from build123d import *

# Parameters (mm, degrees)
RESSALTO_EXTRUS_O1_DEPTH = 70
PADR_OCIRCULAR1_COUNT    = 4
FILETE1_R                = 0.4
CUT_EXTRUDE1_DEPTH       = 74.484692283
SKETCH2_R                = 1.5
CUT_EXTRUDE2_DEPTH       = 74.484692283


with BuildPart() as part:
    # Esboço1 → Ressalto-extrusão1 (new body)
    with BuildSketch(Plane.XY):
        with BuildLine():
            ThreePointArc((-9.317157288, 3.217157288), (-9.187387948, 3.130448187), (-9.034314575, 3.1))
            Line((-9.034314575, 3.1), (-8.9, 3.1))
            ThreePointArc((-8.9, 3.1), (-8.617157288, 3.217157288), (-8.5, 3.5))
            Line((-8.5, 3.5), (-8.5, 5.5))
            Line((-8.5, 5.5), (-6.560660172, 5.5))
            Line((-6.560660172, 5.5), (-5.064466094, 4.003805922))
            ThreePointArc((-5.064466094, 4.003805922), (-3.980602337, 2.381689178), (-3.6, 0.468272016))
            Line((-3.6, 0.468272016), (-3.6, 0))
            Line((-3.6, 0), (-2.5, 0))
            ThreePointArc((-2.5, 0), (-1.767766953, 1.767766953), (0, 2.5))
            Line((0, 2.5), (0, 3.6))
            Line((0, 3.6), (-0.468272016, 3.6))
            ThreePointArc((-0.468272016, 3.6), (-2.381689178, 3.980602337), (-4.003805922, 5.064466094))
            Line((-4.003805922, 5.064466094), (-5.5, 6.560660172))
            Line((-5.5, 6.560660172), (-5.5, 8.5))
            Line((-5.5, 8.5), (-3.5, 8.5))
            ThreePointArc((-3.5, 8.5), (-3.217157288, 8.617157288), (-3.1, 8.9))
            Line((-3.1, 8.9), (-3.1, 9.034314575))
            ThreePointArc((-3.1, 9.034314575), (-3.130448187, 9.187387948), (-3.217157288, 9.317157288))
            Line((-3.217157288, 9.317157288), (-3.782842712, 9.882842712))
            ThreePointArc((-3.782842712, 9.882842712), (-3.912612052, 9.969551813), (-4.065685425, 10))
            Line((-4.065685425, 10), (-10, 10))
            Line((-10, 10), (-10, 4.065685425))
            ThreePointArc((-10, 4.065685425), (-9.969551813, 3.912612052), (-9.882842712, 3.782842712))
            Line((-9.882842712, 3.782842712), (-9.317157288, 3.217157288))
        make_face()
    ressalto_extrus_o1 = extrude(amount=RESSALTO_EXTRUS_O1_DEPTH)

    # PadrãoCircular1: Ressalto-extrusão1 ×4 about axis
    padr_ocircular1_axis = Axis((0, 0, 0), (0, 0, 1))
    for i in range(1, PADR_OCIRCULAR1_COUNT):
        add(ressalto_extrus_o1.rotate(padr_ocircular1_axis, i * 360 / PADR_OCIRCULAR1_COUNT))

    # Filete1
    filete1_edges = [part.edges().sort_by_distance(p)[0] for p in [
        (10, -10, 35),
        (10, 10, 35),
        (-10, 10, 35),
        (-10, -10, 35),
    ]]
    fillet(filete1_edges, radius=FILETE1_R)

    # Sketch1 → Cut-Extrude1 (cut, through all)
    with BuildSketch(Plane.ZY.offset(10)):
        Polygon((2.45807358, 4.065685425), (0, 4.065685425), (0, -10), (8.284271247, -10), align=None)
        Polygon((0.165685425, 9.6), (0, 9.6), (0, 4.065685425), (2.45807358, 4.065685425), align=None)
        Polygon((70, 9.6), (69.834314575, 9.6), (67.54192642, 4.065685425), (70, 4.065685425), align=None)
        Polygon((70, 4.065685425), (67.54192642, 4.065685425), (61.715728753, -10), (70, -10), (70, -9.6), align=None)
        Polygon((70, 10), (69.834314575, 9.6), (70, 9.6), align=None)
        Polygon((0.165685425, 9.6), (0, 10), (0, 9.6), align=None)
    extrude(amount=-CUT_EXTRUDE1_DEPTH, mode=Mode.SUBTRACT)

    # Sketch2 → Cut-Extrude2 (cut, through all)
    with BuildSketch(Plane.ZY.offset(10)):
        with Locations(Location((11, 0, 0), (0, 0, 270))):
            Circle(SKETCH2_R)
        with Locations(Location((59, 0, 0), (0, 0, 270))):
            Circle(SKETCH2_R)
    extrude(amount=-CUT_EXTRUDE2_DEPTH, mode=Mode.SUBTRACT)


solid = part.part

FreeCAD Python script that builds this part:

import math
import FreeCAD as App
import Part
import Sketcher
from FreeCAD import Vector
Q = App.Units.Quantity


def edges_at(feature, points):
    """Names of the edges that pass closest to the given points."""
    edges = feature.Shape.Edges
    near = lambda p: min(range(len(edges)), key=lambda i: edges[i].distToShape(Part.Vertex(*p))[0])
    return sorted({f"Edge{near(p) + 1}" for p in points})


def add_polygon(sketch, points):
    """Adds a closed chain of lines whose ends are joined by coincident constraints."""
    first, n = sketch.GeometryCount, len(points)
    for a, b in zip(points, points[1:] + points[:1]):
        sketch.addGeometry(Part.LineSegment(App.Vector(*a, 0), App.Vector(*b, 0)), False)
    for i in range(n):
        sketch.addConstraint(Sketcher.Constraint("Coincident", first + i, 2, first + (i + 1) % n, 1))

doc = App.newDocument("Part")
body = doc.addObject("PartDesign::Body", "Body")

sketch1 = body.newObject("Sketcher::SketchObject", "Sketch")
sketch1.AttachmentSupport = (doc.getObject("XY_Plane"), [""])
sketch1.MapMode = "FlatFace"
sketch1.addGeometry([
    Part.ArcOfCircle(Part.Circle(Vector(-9.034315, 3.5, 0), Vector(0, 0, 1), 0.4), math.radians(-135), math.radians(-90)),
    Part.LineSegment(Vector(-9.034315, 3.1, 0), Vector(-8.9, 3.1, 0)),
    Part.ArcOfCircle(Part.Circle(Vector(-8.9, 3.5, 0), Vector(0, 0, 1), 0.4), math.radians(-90), math.radians(0)),
    Part.LineSegment(Vector(-8.5, 3.5, 0), Vector(-8.5, 5.5, 0)),
    Part.LineSegment(Vector(-8.5, 5.5, 0), Vector(-6.56066, 5.5, 0)),
    Part.LineSegment(Vector(-6.56066, 5.5, 0), Vector(-5.064466, 4.003806, 0)),
    Part.ArcOfCircle(Part.Circle(Vector(-8.6, 0.468272, 0), Vector(0, 0, 1), 5), math.radians(0), math.radians(45)),
    Part.LineSegment(Vector(-3.6, 0.468272, 0), Vector(-3.6, 0, 0)),
    Part.LineSegment(Vector(-3.6, 0, 0), Vector(-2.5, 0, 0)),
    Part.ArcOfCircle(Part.Circle(Vector(0, 0, 0), Vector(0, 0, 1), 2.5), math.radians(90), math.radians(180)),
    Part.LineSegment(Vector(0, 2.5, 0), Vector(0, 3.6, 0)),
    Part.LineSegment(Vector(0, 3.6, 0), Vector(-0.468272, 3.6, 0)),
    Part.ArcOfCircle(Part.Circle(Vector(-0.468272, 8.6, 0), Vector(0, 0, 1), 5), math.radians(-135), math.radians(-90)),
    Part.LineSegment(Vector(-4.003806, 5.064466, 0), Vector(-5.5, 6.56066, 0)),
    Part.LineSegment(Vector(-5.5, 6.56066, 0), Vector(-5.5, 8.5, 0)),
    Part.LineSegment(Vector(-5.5, 8.5, 0), Vector(-3.5, 8.5, 0)),
    Part.ArcOfCircle(Part.Circle(Vector(-3.5, 8.9, 0), Vector(0, 0, 1), 0.4), math.radians(-90), math.radians(0)),
    Part.LineSegment(Vector(-3.1, 8.9, 0), Vector(-3.1, 9.034315, 0)),
    Part.ArcOfCircle(Part.Circle(Vector(-3.5, 9.034315, 0), Vector(0, 0, 1), 0.4), math.radians(0), math.radians(45)),
    Part.LineSegment(Vector(-3.217157, 9.317157, 0), Vector(-3.782843, 9.882843, 0)),
    Part.ArcOfCircle(Part.Circle(Vector(-4.065685, 9.6, 0), Vector(0, 0, 1), 0.4), math.radians(45), math.radians(90)),
    Part.LineSegment(Vector(-4.065685, 10, 0), Vector(-10, 10, 0)),
    Part.LineSegment(Vector(-10, 10, 0), Vector(-10, 4.065685, 0)),
    Part.ArcOfCircle(Part.Circle(Vector(-9.6, 4.065685, 0), Vector(0, 0, 1), 0.4), math.radians(180), math.radians(225)),
    Part.LineSegment(Vector(-9.882843, 3.782843, 0), Vector(-9.317157, 3.217157, 0)),
], False)
sketch1.addConstraint([
    Sketcher.Constraint("Tangent", 0, 2, 1, 1),
    Sketcher.Constraint("Tangent", 1, 2, 2, 1),
    Sketcher.Constraint("Tangent", 2, 2, 3, 1),
    Sketcher.Constraint("Coincident", 3, 2, 4, 1),
    Sketcher.Constraint("Coincident", 4, 2, 5, 1),
    Sketcher.Constraint("Tangent", 5, 2, 6, 2),
    Sketcher.Constraint("Tangent", 6, 1, 7, 1),
    Sketcher.Constraint("Coincident", 7, 2, 8, 1),
    Sketcher.Constraint("Coincident", 8, 2, 9, 2),
    Sketcher.Constraint("Coincident", 9, 1, 10, 1),
    Sketcher.Constraint("Coincident", 10, 2, 11, 1),
    Sketcher.Constraint("Tangent", 11, 2, 12, 2),
    Sketcher.Constraint("Tangent", 12, 1, 13, 1),
    Sketcher.Constraint("Coincident", 13, 2, 14, 1),
    Sketcher.Constraint("Coincident", 14, 2, 15, 1),
    Sketcher.Constraint("Tangent", 15, 2, 16, 1),
    Sketcher.Constraint("Tangent", 16, 2, 17, 1),
    Sketcher.Constraint("Tangent", 17, 2, 18, 1),
    Sketcher.Constraint("Tangent", 18, 2, 19, 1),
    Sketcher.Constraint("Tangent", 19, 2, 20, 1),
    Sketcher.Constraint("Tangent", 20, 2, 21, 1),
    Sketcher.Constraint("Coincident", 21, 2, 22, 1),
    Sketcher.Constraint("Tangent", 22, 2, 23, 1),
    Sketcher.Constraint("Tangent", 23, 2, 24, 1),
    Sketcher.Constraint("Tangent", 24, 2, 0, 1),
    Sketcher.Constraint("Horizontal", 1),
    Sketcher.Constraint("Vertical", 3),
    Sketcher.Constraint("Horizontal", 4),
    Sketcher.Constraint("Vertical", 7),
    Sketcher.Constraint("Horizontal", 8),
    Sketcher.Constraint("Vertical", 10),
    Sketcher.Constraint("Horizontal", 11),
    Sketcher.Constraint("Vertical", 14),
    Sketcher.Constraint("Horizontal", 15),
    Sketcher.Constraint("Vertical", 17),
    Sketcher.Constraint("Horizontal", 21),
    Sketcher.Constraint("Vertical", 22),
    Sketcher.Constraint("Coincident", 9, 3, -1, 1),
    Sketcher.Constraint("Equal", 0, 2),
    Sketcher.Constraint("Equal", 6, 12),
    Sketcher.Constraint("Equal", 2, 16),
    Sketcher.Constraint("Equal", 16, 18),
    Sketcher.Constraint("Equal", 18, 20),
    Sketcher.Constraint("Equal", 20, 23),
    Sketcher.Constraint("PointOnObject", 7, 2, -1),
    Sketcher.Constraint("PointOnObject", 9, 1, -2),
    Sketcher.Constraint("Parallel", 5, 13),
    Sketcher.Constraint("Parallel", 13, 19),
    Sketcher.Constraint("Parallel", 19, 24),
    Sketcher.Constraint("Equal", 15, 3),
    Sketcher.Constraint("Equal", 11, 7),
    Sketcher.Constraint("Equal", 8, 10),
    Sketcher.Constraint("Equal", 4, 14),
    Sketcher.Constraint("Equal", 1, 17),
    Sketcher.Constraint("Equal", 21, 22),
    Sketcher.Constraint("Equal", 5, 13),
    Sketcher.Constraint("Equal", 19, 24),
    Sketcher.Constraint("Radius", 6, Q("5 mm")),
    Sketcher.Constraint("Radius", 0, Q("0.4 mm")),
    Sketcher.Constraint("Radius", 9, Q("2.5 mm")),
    Sketcher.Constraint("DistanceX", 15, 1, 15, 2, Q("2 mm")),
    Sketcher.Constraint("DistanceX", 8, 1, 8, 2, Q("1.1 mm")),
    Sketcher.Constraint("DistanceY", -1, 1, 20, 2, Q("10 mm")),
    Sketcher.Constraint("DistanceY", 4, 2, 14, 2, Q("3 mm")),
    Sketcher.Constraint("Distance", 19, Q("0.8 mm")),
    Sketcher.Constraint("DistanceY", -1, 1, 0, 3, Q("3.5 mm")),
    Sketcher.Constraint("DistanceX", 4, 1, 4, 2, Q("1.93934 mm")),
])
pad1 = body.newObject("PartDesign::Pad", "Pad")
pad1.Profile = sketch1
pad1.Length = 70
doc.recompute()

polarpattern = body.newObject("PartDesign::PolarPattern", "PolarPattern")
polarpattern.Originals = [pad1]
polarpattern.Axis = (doc.getObject("Z_Axis"), [""])
polarpattern.Angle = 360
polarpattern.Occurrences = 4
body.Tip = polarpattern
doc.recompute()

fillet = body.newObject("PartDesign::Fillet", "Fillet")
fillet.Base = (polarpattern, edges_at(polarpattern, [
    (10, -10, 35),
    (10, 10, 35),
    (-10, 10, 35),
    (-10, -10, 35),
]))
fillet.Radius = 0.4

sketch2 = body.newObject("Sketcher::SketchObject", "Sketch001")
sketch2.AttachmentSupport = (doc.getObject("YZ_Plane"), [""])
sketch2.MapMode = "FlatFace"
sketch2.AttachmentOffset = App.Placement(Vector(0, 0, -10), App.Rotation())
add_polygon(sketch2, [(-10, 0), (-10, 8.284271), (4.065685, 2.458074), (9.6, 0.165685), (10, 0)])
add_polygon(sketch2, [(9.6, 69.834315), (4.065685, 67.541926), (-10, 61.715729), (-10, 70), (10, 70)])
sketch2.addConstraint([
    Sketcher.Constraint("Vertical", 0),
    Sketcher.Constraint("Horizontal", 4),
    Sketcher.Constraint("Vertical", 7),
    Sketcher.Constraint("Horizontal", 8),
    Sketcher.Constraint("Symmetric", 3, 2, 4, 2, -1, 1),
    Sketcher.Constraint("Parallel", 1, 2),
    Sketcher.Constraint("Parallel", 2, 3),
    Sketcher.Constraint("Parallel", 5, 6),
    Sketcher.Constraint("Parallel", 6, 9),
    Sketcher.Constraint("Vertical", 1, 2, 5, 2),
    Sketcher.Constraint("Vertical", 4, 2, 6, 2),
    Sketcher.Constraint("Vertical", 3, 2, 8, 2),
    Sketcher.Constraint("Vertical", 2, 2, 9, 2),
    Sketcher.Constraint("Equal", 0, 7),
    Sketcher.Constraint("DistanceX", 4, 2, 4, 1, Q("20 mm")),
    Sketcher.Constraint("DistanceY", -1, 1, 7, 2, Q("70 mm")),
    Sketcher.Constraint("Angle", 1, Q("-22.5 deg")),
    Sketcher.Constraint("DistanceX", -1, 1, 2, 2, Q("9.6 mm")),
    Sketcher.Constraint("Distance", 2, Q("5.990299 mm")),
])
pocket1 = body.newObject("PartDesign::Pocket", "Pocket")
pocket1.Profile = sketch2
pocket1.Type = "ThroughAll"
pocket1.Reversed = True

sketch3 = body.newObject("Sketcher::SketchObject", "Sketch002")
sketch3.AttachmentSupport = (doc.getObject("YZ_Plane"), [""])
sketch3.MapMode = "FlatFace"
sketch3.AttachmentOffset = App.Placement(Vector(0, 0, -10), App.Rotation())
sketch3.addGeometry([
    Part.Circle(Vector(0, 11, 0), Vector(0, 0, 1), 1.5),
    Part.Circle(Vector(0, 59, 0), Vector(0, 0, 1), 1.5),
], False)
sketch3.addConstraint([
    Sketcher.Constraint("Equal", 0, 1),
    Sketcher.Constraint("PointOnObject", 0, 3, -2),
    Sketcher.Constraint("PointOnObject", 1, 3, -2),
    Sketcher.Constraint("Diameter", 0, Q("3 mm")),
    Sketcher.Constraint("DistanceY", -1, 1, 0, 3, Q("11 mm")),
    Sketcher.Constraint("DistanceY", -1, 1, 1, 3, Q("59 mm")),
])
pocket2 = body.newObject("PartDesign::Pocket", "Pocket001")
pocket2.Profile = sketch3
pocket2.Type = "ThroughAll"
pocket2.Reversed = True

doc.recompute()
